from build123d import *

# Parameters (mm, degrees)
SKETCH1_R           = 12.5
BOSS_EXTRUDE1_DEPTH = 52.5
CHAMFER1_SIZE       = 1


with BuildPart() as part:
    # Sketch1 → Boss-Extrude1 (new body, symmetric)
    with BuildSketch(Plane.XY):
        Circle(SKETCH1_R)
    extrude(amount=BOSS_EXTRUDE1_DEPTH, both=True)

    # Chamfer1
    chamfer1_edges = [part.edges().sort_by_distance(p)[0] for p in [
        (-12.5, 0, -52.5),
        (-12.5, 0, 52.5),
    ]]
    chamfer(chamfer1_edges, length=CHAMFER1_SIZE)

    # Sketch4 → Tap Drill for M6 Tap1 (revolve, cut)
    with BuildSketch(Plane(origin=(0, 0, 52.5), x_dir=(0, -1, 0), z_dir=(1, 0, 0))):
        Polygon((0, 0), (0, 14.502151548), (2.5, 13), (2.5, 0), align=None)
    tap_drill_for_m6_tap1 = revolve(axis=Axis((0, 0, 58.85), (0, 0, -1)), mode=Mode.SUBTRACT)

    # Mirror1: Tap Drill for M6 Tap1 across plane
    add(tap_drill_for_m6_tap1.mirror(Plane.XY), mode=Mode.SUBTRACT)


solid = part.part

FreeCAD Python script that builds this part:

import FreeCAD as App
import Part
import Sketcher

V = App.Vector
Q = App.Units.Quantity


def edges_at(feature, points):
    """Names of the edges that pass closest to the given points."""
    edges = feature.Shape.Edges
    near = lambda p: min(range(len(edges)), key=lambda i: edges[i].distToShape(Part.Vertex(*p))[0])
    return sorted({f"Edge{near(p) + 1}" for p in points})


def add_polygon(sketch, points):
    """Adds a closed chain of lines whose ends are joined by coincident constraints."""
    first, n = sketch.GeometryCount, len(points)
    for a, b in zip(points, points[1:] + points[:1]):
        sketch.addGeometry(Part.LineSegment(App.Vector(*a, 0), App.Vector(*b, 0)), False)
    for i in range(n):
        sketch.addConstraint(Sketcher.Constraint("Coincident", first + i, 2, first + (i + 1) % n, 1))

doc = App.newDocument("Part")
body = doc.addObject("PartDesign::Body", "Body")

# Sketch on XY plane
sketch1 = body.newObject("Sketcher::SketchObject", "Sketch")
sketch1.AttachmentSupport = (doc.getObject("XY_Plane"), [""])
sketch1.MapMode = "FlatFace"
sketch1.addGeometry(Part.Circle(V(0, 0, 0), V(0, 0, 1), 12), False)
sketch1.addConstraint([
    Sketcher.Constraint("Coincident", 0, 3, -1, 1),
    Sketcher.Constraint("Diameter", 0, 25.0),
])
pad1 = body.newObject("PartDesign::Pad", "Pad")
pad1.Profile = sketch1
pad1.Length = 105
pad1.Midplane = True
doc.recompute()

chamfer = body.newObject("PartDesign::Chamfer", "Chamfer")
chamfer.Base = (pad1, edges_at(pad1, [(-12.5, 0, -52.5), (-12.5, 0, 52.5)]))
chamfer.Size = 1

# Sketch on YZ plane
sketch2 = body.newObject("Sketcher::SketchObject", "Sketch001")
sketch2.AttachmentSupport = (doc.getObject("YZ_Plane"), [""])
sketch2.MapMode = "FlatFace"
add_polygon(sketch2, [(0, 38), (0, 52.5), (-2.5, 52.5), (-2.5, 39.5)])  # lines 0-3
sketch2.addConstraint([
    Sketcher.Constraint("Vertical", 0),
    Sketcher.Constraint("Horizontal", 1),
    Sketcher.Constraint("Vertical", 2),
    Sketcher.Constraint("PointOnObject", 0, 2, -2),
    Sketcher.Constraint("DistanceY", 2, 2, 2, 1, 13.0),
    Sketcher.Constraint("Angle", 3, Q("-31 deg")),
    Sketcher.Constraint("DistanceX", 1, 2, 1, 1, 2.5),
    Sketcher.Constraint("DistanceY", -1, 1, 0, 2, 52.5),
])
groove = body.newObject("PartDesign::Groove", "Groove")
groove.Profile = sketch2
groove.ReferenceAxis = (sketch2, ["V_Axis"])
groove.Angle = 360
doc.recompute()

mirrored = body.newObject("PartDesign::Mirrored", "Mirrored")
mirrored.Originals = [groove]
mirrored.MirrorPlane = (doc.getObject("XY_Plane"), [""])
body.Tip = mirrored

doc.recompute()
